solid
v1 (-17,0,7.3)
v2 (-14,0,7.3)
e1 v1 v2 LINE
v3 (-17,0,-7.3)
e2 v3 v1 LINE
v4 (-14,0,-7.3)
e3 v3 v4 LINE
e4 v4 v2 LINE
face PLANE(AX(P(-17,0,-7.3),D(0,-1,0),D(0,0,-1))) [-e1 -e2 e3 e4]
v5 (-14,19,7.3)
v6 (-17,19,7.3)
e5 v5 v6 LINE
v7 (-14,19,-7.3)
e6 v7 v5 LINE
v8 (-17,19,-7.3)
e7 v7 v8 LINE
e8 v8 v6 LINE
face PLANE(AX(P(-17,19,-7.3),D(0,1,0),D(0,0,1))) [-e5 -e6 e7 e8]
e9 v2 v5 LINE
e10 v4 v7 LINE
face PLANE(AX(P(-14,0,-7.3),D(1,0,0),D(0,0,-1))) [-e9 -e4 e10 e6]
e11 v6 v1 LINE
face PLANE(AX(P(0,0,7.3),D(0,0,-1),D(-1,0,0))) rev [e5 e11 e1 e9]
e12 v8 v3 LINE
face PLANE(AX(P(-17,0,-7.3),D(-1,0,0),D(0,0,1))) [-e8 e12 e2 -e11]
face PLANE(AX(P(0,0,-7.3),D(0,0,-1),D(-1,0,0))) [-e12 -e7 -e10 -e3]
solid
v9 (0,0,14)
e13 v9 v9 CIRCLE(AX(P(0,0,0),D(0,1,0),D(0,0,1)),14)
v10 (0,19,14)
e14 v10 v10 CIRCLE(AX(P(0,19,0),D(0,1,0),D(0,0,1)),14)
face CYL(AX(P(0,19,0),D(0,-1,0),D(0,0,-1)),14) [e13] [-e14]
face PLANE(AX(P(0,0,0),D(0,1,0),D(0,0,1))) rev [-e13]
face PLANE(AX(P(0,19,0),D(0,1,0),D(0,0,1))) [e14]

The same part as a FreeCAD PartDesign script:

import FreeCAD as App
import Part
import Sketcher


def add_polygon(sketch, points):
    """Adds a closed chain of lines whose ends are joined by coincident constraints."""
    first, n = sketch.GeometryCount, len(points)
    for a, b in zip(points, points[1:] + points[:1]):
        sketch.addGeometry(Part.LineSegment(App.Vector(*a, 0), App.Vector(*b, 0)), False)
    for i in range(n):
        sketch.addConstraint(Sketcher.Constraint("Coincident", first + i, 2, first + (i + 1) % n, 1))

doc = App.newDocument("Part")
body = doc.addObject("PartDesign::Body", "Body")

sketch1 = doc.addObject("Sketcher::SketchObject", "Sketch")
body.addObject(sketch1)
sketch1.AttachmentSupport = (doc.XZ_Plane, [""])
sketch1.MapMode = "FlatFace"
sketch1.addGeometry(Part.Circle(App.Vector(0, 0, 0), App.Vector(0, 0, 1), 14), False)
sketch1.addConstraint([
    Sketcher.Constraint("Coincident", 0, 3, -1, 1),
    Sketcher.Constraint("Diameter", 0, 28.0),
])
pad1 = doc.addObject("PartDesign::Pad", "Pad")
body.addObject(pad1)
pad1.Profile = sketch1
pad1.Length = 19
pad1.Reversed = True
body2 = doc.addObject("PartDesign::Body", "Body001")

sketch2 = doc.addObject("Sketcher::SketchObject", "Sketch001")
body2.addObject(sketch2)
sketch2.AttachmentSupport = (doc.getObject("XY_Plane001"), [""])
sketch2.MapMode = "FlatFace"
add_polygon(sketch2, [(-17, 19), (-17, 0), (-14, 0), (-14, 19)])
sketch2.addConstraint([
    Sketcher.Constraint("Vertical", 0),
    Sketcher.Constraint("Horizontal", 1),
    Sketcher.Constraint("Vertical", 2),
    Sketcher.Constraint("Horizontal", 3),
    Sketcher.Constraint("PointOnObject", 0, 2, -1),
    Sketcher.Constraint("DistanceX", 1, 1, 1, 2, 3.0),
    Sketcher.Constraint("DistanceY", 0, 2, 0, 1, 19.0),
    Sketcher.Constraint("DistanceX", 0, 2, -1, 1, 17.0),
])
pad2 = doc.addObject("PartDesign::Pad", "Pad001")
body2.addObject(pad2)
pad2.Profile = sketch2
pad2.Type = "TwoLengths"
pad2.Length = 7.3
pad2.Length2 = 7.3

doc.recompute()
